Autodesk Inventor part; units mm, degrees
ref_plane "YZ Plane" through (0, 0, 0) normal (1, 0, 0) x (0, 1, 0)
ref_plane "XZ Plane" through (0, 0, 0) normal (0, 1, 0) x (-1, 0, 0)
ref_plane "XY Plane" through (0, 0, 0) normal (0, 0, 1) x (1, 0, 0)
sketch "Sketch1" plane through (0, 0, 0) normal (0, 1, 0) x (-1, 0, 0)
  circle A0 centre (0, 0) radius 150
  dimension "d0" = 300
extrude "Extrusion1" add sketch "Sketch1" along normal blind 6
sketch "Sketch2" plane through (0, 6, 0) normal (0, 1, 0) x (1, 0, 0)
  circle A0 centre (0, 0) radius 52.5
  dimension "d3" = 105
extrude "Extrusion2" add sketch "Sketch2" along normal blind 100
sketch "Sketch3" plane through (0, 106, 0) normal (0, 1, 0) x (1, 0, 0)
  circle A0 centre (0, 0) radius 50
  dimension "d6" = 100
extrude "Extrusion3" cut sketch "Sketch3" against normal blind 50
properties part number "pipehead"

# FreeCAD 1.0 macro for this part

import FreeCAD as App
import Part
import Sketcher

doc = App.newDocument("Part")
body = doc.addObject("PartDesign::Body", "Body")

# Sketch on XZ plane
sketch1 = body.newObject("Sketcher::SketchObject", "Sketch")
sketch1.AttachmentSupport = (doc.getObject("XZ_Plane"), [""])
sketch1.MapMode = "FlatFace"
sketch1.addGeometry(Part.Circle(App.Vector(0, 0, 0), App.Vector(0, 0, 1), 150), False)
sketch1.addConstraint(Sketcher.Constraint("Coincident", 0, 3, -1, 1))
sketch1.addConstraint(Sketcher.Constraint("Diameter", 0, 300.0))
pad1 = body.newObject("PartDesign::Pad", "Pad")
pad1.Profile = sketch1
pad1.Length = 6
pad1.Reversed = True

# Sketch on XZ plane
sketch2 = body.newObject("Sketcher::SketchObject", "Sketch001")
sketch2.AttachmentSupport = (doc.getObject("XZ_Plane"), [""])
sketch2.MapMode = "FlatFace"
sketch2.AttachmentOffset = App.Placement(App.Vector(0, 0, -6), App.Rotation())
sketch2.addGeometry(Part.Circle(App.Vector(0, 0, 0), App.Vector(0, 0, 1), 52), False)
sketch2.addConstraint(Sketcher.Constraint("Coincident", 0, 3, -1, 1))
sketch2.addConstraint(Sketcher.Constraint("Diameter", 0, 105.0))
pad2 = body.newObject("PartDesign::Pad", "Pad001")
pad2.Profile = sketch2
pad2.Length = 100
pad2.Reversed = True

# Sketch on XZ plane
sketch3 = body.newObject("Sketcher::SketchObject", "Sketch002")
sketch3.AttachmentSupport = (doc.getObject("XZ_Plane"), [""])
sketch3.MapMode = "FlatFace"
sketch3.AttachmentOffset = App.Placement(App.Vector(0, 0, -106), App.Rotation())
sketch3.addGeometry(Part.Circle(App.Vector(0, 0, 0), App.Vector(0, 0, 1), 50), False)
sketch3.addConstraint(Sketcher.Constraint("Coincident", 0, 3, -1, 1))
sketch3.addConstraint(Sketcher.Constraint("Diameter", 0, 100.0))
pocket1 = body.newObject("PartDesign::Pocket", "Pocket")
pocket1.Profile = sketch3
pocket1.Length = 50
pocket1.Reversed = True

doc.recompute()
